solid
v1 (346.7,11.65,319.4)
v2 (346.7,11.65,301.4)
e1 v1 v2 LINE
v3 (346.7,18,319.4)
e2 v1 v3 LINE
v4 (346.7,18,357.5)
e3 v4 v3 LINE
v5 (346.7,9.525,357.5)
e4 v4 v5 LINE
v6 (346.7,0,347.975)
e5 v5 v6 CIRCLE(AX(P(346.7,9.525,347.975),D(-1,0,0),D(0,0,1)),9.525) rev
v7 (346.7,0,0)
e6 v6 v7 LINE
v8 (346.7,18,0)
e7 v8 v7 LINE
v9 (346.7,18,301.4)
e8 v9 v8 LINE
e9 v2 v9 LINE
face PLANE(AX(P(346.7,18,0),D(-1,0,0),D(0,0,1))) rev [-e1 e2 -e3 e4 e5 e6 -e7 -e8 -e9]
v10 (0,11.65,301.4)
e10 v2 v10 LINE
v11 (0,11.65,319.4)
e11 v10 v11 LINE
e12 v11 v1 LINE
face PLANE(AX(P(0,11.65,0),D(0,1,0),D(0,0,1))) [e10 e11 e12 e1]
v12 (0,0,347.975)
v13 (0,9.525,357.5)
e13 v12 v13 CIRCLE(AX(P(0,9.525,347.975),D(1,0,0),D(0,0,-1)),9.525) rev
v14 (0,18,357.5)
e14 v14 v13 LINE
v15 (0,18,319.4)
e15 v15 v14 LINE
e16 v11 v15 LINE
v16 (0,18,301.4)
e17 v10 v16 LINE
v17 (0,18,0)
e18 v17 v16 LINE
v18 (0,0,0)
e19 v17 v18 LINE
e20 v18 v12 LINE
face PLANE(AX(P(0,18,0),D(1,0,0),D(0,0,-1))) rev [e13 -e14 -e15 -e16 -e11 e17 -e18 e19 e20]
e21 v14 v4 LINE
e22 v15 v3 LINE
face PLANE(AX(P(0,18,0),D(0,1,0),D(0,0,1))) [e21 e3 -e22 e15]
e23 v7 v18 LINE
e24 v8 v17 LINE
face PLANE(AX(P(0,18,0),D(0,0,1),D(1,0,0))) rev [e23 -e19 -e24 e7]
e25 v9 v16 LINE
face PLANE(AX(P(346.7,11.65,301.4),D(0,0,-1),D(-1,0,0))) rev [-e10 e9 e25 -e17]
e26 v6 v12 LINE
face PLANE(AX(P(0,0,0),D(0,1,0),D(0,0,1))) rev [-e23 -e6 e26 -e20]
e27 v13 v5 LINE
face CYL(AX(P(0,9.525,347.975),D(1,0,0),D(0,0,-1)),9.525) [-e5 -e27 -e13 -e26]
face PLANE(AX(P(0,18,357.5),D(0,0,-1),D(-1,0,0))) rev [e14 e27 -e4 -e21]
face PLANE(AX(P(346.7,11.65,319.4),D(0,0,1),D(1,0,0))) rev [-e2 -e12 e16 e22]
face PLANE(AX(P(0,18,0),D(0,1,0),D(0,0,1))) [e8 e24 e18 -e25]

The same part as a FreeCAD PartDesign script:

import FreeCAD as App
import Part
import Sketcher

V = App.Vector
Q = App.Units.Quantity


def edges_at(feature, points):
    """Names of the edges that pass closest to the given points."""
    edges = feature.Shape.Edges
    near = lambda p: min(range(len(edges)), key=lambda i: edges[i].distToShape(Part.Vertex(*p))[0])
    return sorted({f"Edge{near(p) + 1}" for p in points})


def add_polygon(sketch, points):
    """Adds a closed chain of lines whose ends are joined by coincident constraints."""
    first, n = sketch.GeometryCount, len(points)
    for a, b in zip(points, points[1:] + points[:1]):
        sketch.addGeometry(Part.LineSegment(App.Vector(*a, 0), App.Vector(*b, 0)), False)
    for i in range(n):
        sketch.addConstraint(Sketcher.Constraint("Coincident", first + i, 2, first + (i + 1) % n, 1))

doc = App.newDocument("Part")
body = doc.addObject("PartDesign::Body", "Body")

# Sketch on XZ plane
sketch1 = body.newObject("Sketcher::SketchObject", "Sketch")
sketch1.AttachmentSupport = (doc.getObject("XZ_Plane"), [""])
sketch1.MapMode = "FlatFace"
add_polygon(sketch1, [(0, 0), (0, 357.5), (346.7, 357.5), (346.7, 0)])  # lines 0-3
sketch1.addConstraint(Sketcher.Constraint("Vertical", 0))
sketch1.addConstraint(Sketcher.Constraint("Horizontal", 1))
sketch1.addConstraint(Sketcher.Constraint("Vertical", 2))
sketch1.addConstraint(Sketcher.Constraint("Horizontal", 3))
sketch1.addConstraint(Sketcher.Constraint("Coincident", 3, 2, -1, 1))
sketch1.addConstraint(Sketcher.Constraint("DistanceX", 1, 1, 1, 2, Q("346.7 mm")))
sketch1.addConstraint(Sketcher.Constraint("DistanceY", 0, 1, 0, 2, Q("357.5 mm")))
pad1 = body.newObject("PartDesign::Pad", "Pad")
pad1.Profile = sketch1
pad1.Length = 18
pad1.Reversed = True

# Sketch on XZ plane
sketch2 = body.newObject("Sketcher::SketchObject", "Sketch001")
sketch2.AttachmentSupport = (doc.getObject("XZ_Plane"), [""])
sketch2.MapMode = "FlatFace"
sketch2.AttachmentOffset = App.Placement(V(0, 0, -18), App.Rotation())
add_polygon(sketch2, [(0, 301.4), (0, 319.4), (346.7, 319.4), (346.7, 301.4)])  # lines 0-3
sketch2.addConstraint(Sketcher.Constraint("Vertical", 0))
sketch2.addConstraint(Sketcher.Constraint("Horizontal", 1))
sketch2.addConstraint(Sketcher.Constraint("Vertical", 2))
sketch2.addConstraint(Sketcher.Constraint("Horizontal", 3))
sketch2.addConstraint(Sketcher.Constraint("PointOnObject", 0, 2, -2))
sketch2.addConstraint(Sketcher.Constraint("DistanceY", 0, 1, 0, 2, Q("18 mm")))
sketch2.addConstraint(Sketcher.Constraint("DistanceX", 1, 1, 1, 2, Q("346.7 mm")))
sketch2.addConstraint(Sketcher.Constraint("DistanceY", -1, 1, 0, 2, Q("319.4 mm")))
pocket1 = body.newObject("PartDesign::Pocket", "Pocket")
pocket1.Profile = sketch2
pocket1.Length = 6.35
pocket1.Reversed = True
doc.recompute()

fillet = body.newObject("PartDesign::Fillet", "Fillet")
fillet.Base = (pocket1, edges_at(pocket1, [(173.35, 0, 357.5)]))
fillet.Radius = 9.525

doc.recompute()
